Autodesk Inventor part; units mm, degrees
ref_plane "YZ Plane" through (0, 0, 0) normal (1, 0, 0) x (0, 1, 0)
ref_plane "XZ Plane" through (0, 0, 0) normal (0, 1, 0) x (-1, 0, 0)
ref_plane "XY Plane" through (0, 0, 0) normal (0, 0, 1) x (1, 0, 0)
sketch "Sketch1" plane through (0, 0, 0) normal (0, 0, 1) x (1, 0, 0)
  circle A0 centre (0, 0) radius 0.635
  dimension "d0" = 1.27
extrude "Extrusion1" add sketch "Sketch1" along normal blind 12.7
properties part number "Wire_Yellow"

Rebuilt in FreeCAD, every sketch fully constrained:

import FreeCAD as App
import Part
import Sketcher
from FreeCAD import Vector
Q = App.Units.Quantity

doc = App.newDocument("Part")
body = doc.addObject("PartDesign::Body", "Body")

sketch1 = doc.addObject("Sketcher::SketchObject", "Sketch")
body.addObject(sketch1)
sketch1.AttachmentSupport = (doc.XY_Plane, [""])
sketch1.MapMode = "FlatFace"
sketch1.addGeometry(Part.Circle(Vector(0, 0, 0), Vector(0, 0, 1), 0.6), False)
sketch1.addConstraint([
    Sketcher.Constraint("Coincident", 0, 3, -1, 1),
    Sketcher.Constraint("Diameter", 0, Q("0.05 in")),
])
pad1 = doc.addObject("PartDesign::Pad", "Pad")
body.addObject(pad1)
pad1.Profile = sketch1
pad1.Length = Q("0.5 in")

doc.recompute()
